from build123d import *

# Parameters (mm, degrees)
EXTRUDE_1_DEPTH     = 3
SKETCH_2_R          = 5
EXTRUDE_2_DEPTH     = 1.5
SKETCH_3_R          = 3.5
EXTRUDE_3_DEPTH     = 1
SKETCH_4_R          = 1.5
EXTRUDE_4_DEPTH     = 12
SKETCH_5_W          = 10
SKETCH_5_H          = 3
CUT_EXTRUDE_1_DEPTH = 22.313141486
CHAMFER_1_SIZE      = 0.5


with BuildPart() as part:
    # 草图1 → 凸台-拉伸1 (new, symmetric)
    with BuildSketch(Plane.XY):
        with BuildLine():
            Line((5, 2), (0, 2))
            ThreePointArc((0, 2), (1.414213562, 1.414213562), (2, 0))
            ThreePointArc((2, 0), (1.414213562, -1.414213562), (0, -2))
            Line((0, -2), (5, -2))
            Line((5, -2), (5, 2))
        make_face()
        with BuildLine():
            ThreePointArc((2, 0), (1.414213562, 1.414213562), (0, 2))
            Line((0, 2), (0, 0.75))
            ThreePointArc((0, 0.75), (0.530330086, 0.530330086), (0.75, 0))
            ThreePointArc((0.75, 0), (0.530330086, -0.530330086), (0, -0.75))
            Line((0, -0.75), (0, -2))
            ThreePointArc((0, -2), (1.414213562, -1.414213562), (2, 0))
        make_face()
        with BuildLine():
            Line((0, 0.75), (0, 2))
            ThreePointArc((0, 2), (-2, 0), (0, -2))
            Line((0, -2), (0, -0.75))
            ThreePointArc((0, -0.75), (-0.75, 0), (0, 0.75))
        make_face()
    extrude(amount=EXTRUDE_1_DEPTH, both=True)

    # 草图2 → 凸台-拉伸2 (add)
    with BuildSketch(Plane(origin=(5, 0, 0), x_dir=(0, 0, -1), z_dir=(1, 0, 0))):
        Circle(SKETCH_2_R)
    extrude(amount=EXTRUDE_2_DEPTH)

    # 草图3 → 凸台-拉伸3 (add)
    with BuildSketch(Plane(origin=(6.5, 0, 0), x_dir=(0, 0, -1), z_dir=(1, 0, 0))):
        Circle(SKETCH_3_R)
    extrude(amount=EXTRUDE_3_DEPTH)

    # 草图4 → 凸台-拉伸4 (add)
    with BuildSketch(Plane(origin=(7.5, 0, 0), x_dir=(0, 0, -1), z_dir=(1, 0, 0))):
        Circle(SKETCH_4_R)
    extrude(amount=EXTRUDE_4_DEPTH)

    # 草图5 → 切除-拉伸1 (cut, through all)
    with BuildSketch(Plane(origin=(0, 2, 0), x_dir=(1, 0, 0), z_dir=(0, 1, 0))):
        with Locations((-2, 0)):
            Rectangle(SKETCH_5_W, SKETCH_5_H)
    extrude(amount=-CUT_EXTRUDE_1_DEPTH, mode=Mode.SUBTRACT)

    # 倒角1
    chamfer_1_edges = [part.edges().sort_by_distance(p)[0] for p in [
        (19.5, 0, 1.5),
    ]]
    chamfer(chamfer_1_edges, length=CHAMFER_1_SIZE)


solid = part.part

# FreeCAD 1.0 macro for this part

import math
import FreeCAD as App
import Part
import Sketcher
from FreeCAD import Vector
Q = App.Units.Quantity


def edges_at(feature, points):
    """Names of the edges that pass closest to the given points."""
    edges = feature.Shape.Edges
    near = lambda p: min(range(len(edges)), key=lambda i: edges[i].distToShape(Part.Vertex(*p))[0])
    return sorted({f"Edge{near(p) + 1}" for p in points})


def add_polygon(sketch, points):
    """Adds a closed chain of lines whose ends are joined by coincident constraints."""
    first, n = sketch.GeometryCount, len(points)
    for a, b in zip(points, points[1:] + points[:1]):
        sketch.addGeometry(Part.LineSegment(App.Vector(*a, 0), App.Vector(*b, 0)), False)
    for i in range(n):
        sketch.addConstraint(Sketcher.Constraint("Coincident", first + i, 2, first + (i + 1) % n, 1))

doc = App.newDocument("Part")
params = doc.addObject("Spreadsheet::Sheet", "Params")
for row, (alias, value) in enumerate([
    ("sketch1_radius", "2 mm"),
    ("sketch1_width", "5 mm"),
    ("sketch1_radius2", "0.75 mm"),
    ("pad1_length", "6 mm"),
    ("sketch2_diameter", "10 mm"),
    ("pad2_length", "1.5 mm"),
    ("sketch3_diameter", "7 mm"),
    ("pad3_length", "1 mm"),
    ("sketch4_diameter", "3 mm"),
    ("pad4_length", "12 mm"),
    ("sketch5_width", "10 mm"),
    ("sketch5_height", "3 mm"),
    ("chamfer_size", "0.5 mm"),
], start=1):
    params.set(f"A{row}", alias)
    params.set(f"B{row}", "=" + value)
    params.setAlias(f"B{row}", alias)

body = doc.addObject("PartDesign::Body", "Body")

# Sketch on XY plane
sketch1 = body.newObject("Sketcher::SketchObject", "Sketch")
sketch1.AttachmentSupport = (doc.getObject("XY_Plane"), [""])
sketch1.MapMode = "FlatFace"
sketch1.addGeometry(Part.LineSegment(Vector(0, -2, 0), Vector(5, -2, 0)), False)
sketch1.addGeometry(Part.LineSegment(Vector(5, -2, 0), Vector(5, 2, 0)), False)
sketch1.addGeometry(Part.LineSegment(Vector(5, 2, 0), Vector(0, 2, 0)), False)
sketch1.addGeometry(Part.ArcOfCircle(Part.Circle(Vector(0, 0, 0), Vector(0, 0, 1), 2), math.radians(90), math.radians(270)), False)
sketch1.addGeometry(Part.ArcOfCircle(Part.Circle(Vector(0, 0, 0), Vector(0, 0, 1), 0.8), math.radians(-90), math.radians(0)), False)
sketch1.addGeometry(Part.ArcOfCircle(Part.Circle(Vector(0, 0, 0), Vector(0, 0, 1), 0.8), math.radians(90), math.radians(270)), False)
sketch1.addGeometry(Part.ArcOfCircle(Part.Circle(Vector(0, 0, 0), Vector(0, 0, 1), 0.8), math.radians(0), math.radians(90)), False)
sketch1.addConstraint(Sketcher.Constraint("Coincident", 0, 2, 1, 1))
sketch1.addConstraint(Sketcher.Constraint("Coincident", 1, 2, 2, 1))
sketch1.addConstraint(Sketcher.Constraint("Tangent", 2, 2, 3, 1))
sketch1.addConstraint(Sketcher.Constraint("Tangent", 3, 2, 0, 1))
sketch1.addConstraint(Sketcher.Constraint("Tangent", 4, 1, 5, 2))
sketch1.addConstraint(Sketcher.Constraint("Tangent", 5, 1, 6, 2))
sketch1.addConstraint(Sketcher.Constraint("Tangent", 6, 1, 4, 2))
sketch1.addConstraint(Sketcher.Constraint("Horizontal", 0))
sketch1.addConstraint(Sketcher.Constraint("Vertical", 1))
sketch1.addConstraint(Sketcher.Constraint("Horizontal", 2))
sketch1.addConstraint(Sketcher.Constraint("Coincident", 3, 3, -1, 1))
sketch1.addConstraint(Sketcher.Constraint("Coincident", 4, 3, -1, 1))
sketch1.addConstraint(Sketcher.Constraint("PointOnObject", 4, 1, -2))
sketch1.addConstraint(Sketcher.Constraint("PointOnObject", 5, 1, -2))
sketch1.addConstraint(Sketcher.Constraint("PointOnObject", 6, 1, -1))
sketch1.addConstraint(Sketcher.Constraint("Radius", 3, Q("2 mm")))
sketch1.addConstraint(Sketcher.Constraint("DistanceX", 0, 1, 0, 2, Q("5 mm")))
sketch1.addConstraint(Sketcher.Constraint("Radius", 4, Q("0.75 mm")))
sketch1.setExpression("Constraints[15]", "Params.sketch1_radius")
sketch1.setExpression("Constraints[16]", "Params.sketch1_width")
sketch1.setExpression("Constraints[17]", "Params.sketch1_radius2")
pad1 = body.newObject("PartDesign::Pad", "Pad")
pad1.Profile = sketch1
pad1.setExpression("Length", "Params.pad1_length")
pad1.Midplane = True

# Sketch on YZ plane
sketch2 = body.newObject("Sketcher::SketchObject", "Sketch001")
sketch2.AttachmentSupport = (doc.getObject("YZ_Plane"), [""])
sketch2.MapMode = "FlatFace"
sketch2.AttachmentOffset = App.Placement(Vector(0, 0, 5), App.Rotation())
sketch2.addGeometry(Part.Circle(Vector(0, 0, 0), Vector(0, 0, 1), 5), False)
sketch2.addConstraint(Sketcher.Constraint("Coincident", 0, 3, -1, 1))
sketch2.addConstraint(Sketcher.Constraint("Diameter", 0, Q("10 mm")))
sketch2.setExpression("Constraints[1]", "Params.sketch2_diameter")
pad2 = body.newObject("PartDesign::Pad", "Pad001")
pad2.Profile = sketch2
pad2.setExpression("Length", "Params.pad2_length")

# Sketch on YZ plane
sketch3 = body.newObject("Sketcher::SketchObject", "Sketch002")
sketch3.AttachmentSupport = (doc.getObject("YZ_Plane"), [""])
sketch3.MapMode = "FlatFace"
sketch3.AttachmentOffset = App.Placement(Vector(0, 0, 6.5), App.Rotation())
sketch3.addGeometry(Part.Circle(Vector(0, 0, 0), Vector(0, 0, 1), 3.5), False)
sketch3.addConstraint(Sketcher.Constraint("Coincident", 0, 3, -1, 1))
sketch3.addConstraint(Sketcher.Constraint("Diameter", 0, Q("7 mm")))
sketch3.setExpression("Constraints[1]", "Params.sketch3_diameter")
pad3 = body.newObject("PartDesign::Pad", "Pad002")
pad3.Profile = sketch3
pad3.setExpression("Length", "Params.pad3_length")

# Sketch on YZ plane
sketch4 = body.newObject("Sketcher::SketchObject", "Sketch003")
sketch4.AttachmentSupport = (doc.getObject("YZ_Plane"), [""])
sketch4.MapMode = "FlatFace"
sketch4.AttachmentOffset = App.Placement(Vector(0, 0, 7.5), App.Rotation())
sketch4.addGeometry(Part.Circle(Vector(0, 0, 0), Vector(0, 0, 1), 1.5), False)
sketch4.addConstraint(Sketcher.Constraint("Coincident", 0, 3, -1, 1))
sketch4.addConstraint(Sketcher.Constraint("Diameter", 0, Q("3 mm")))
sketch4.setExpression("Constraints[1]", "Params.sketch4_diameter")
pad4 = body.newObject("PartDesign::Pad", "Pad003")
pad4.Profile = sketch4
pad4.setExpression("Length", "Params.pad4_length")

# Sketch on XZ plane
sketch5 = body.newObject("Sketcher::SketchObject", "Sketch004")
sketch5.AttachmentSupport = (doc.getObject("XZ_Plane"), [""])
sketch5.MapMode = "FlatFace"
sketch5.AttachmentOffset = App.Placement(Vector(0, 0, -2), App.Rotation())
add_polygon(sketch5, [(-7, -1.5), (-7, 1.5), (3, 1.5), (3, -1.5)])  # lines 0-3
sketch5.addConstraint(Sketcher.Constraint("Vertical", 0))
sketch5.addConstraint(Sketcher.Constraint("Horizontal", 1))
sketch5.addConstraint(Sketcher.Constraint("Vertical", 2))
sketch5.addConstraint(Sketcher.Constraint("Horizontal", 3))
sketch5.addConstraint(Sketcher.Constraint("DistanceX", 1, 1, 1, 2, Q("10 mm")))
sketch5.addConstraint(Sketcher.Constraint("DistanceY", 0, 1, 0, 2, Q("3 mm")))
sketch5.addConstraint(Sketcher.Constraint("DistanceX", 0, 2, -1, 1, Q("7 mm")))
sketch5.addConstraint(Sketcher.Constraint("DistanceY", -1, 1, 0, 2, Q("1.5 mm")))
sketch5.setExpression("Constraints[8]", "Params.sketch5_width")
sketch5.setExpression("Constraints[9]", "Params.sketch5_height")
pocket1 = body.newObject("PartDesign::Pocket", "Pocket")
pocket1.Profile = sketch5
pocket1.Type = "ThroughAll"
pocket1.Reversed = True
doc.recompute()

chamfer = body.newObject("PartDesign::Chamfer", "Chamfer")
chamfer.Base = (pocket1, edges_at(pocket1, [(19.5, 0, 1.5)]))
chamfer.setExpression("Size", "Params.chamfer_size")

doc.recompute()
